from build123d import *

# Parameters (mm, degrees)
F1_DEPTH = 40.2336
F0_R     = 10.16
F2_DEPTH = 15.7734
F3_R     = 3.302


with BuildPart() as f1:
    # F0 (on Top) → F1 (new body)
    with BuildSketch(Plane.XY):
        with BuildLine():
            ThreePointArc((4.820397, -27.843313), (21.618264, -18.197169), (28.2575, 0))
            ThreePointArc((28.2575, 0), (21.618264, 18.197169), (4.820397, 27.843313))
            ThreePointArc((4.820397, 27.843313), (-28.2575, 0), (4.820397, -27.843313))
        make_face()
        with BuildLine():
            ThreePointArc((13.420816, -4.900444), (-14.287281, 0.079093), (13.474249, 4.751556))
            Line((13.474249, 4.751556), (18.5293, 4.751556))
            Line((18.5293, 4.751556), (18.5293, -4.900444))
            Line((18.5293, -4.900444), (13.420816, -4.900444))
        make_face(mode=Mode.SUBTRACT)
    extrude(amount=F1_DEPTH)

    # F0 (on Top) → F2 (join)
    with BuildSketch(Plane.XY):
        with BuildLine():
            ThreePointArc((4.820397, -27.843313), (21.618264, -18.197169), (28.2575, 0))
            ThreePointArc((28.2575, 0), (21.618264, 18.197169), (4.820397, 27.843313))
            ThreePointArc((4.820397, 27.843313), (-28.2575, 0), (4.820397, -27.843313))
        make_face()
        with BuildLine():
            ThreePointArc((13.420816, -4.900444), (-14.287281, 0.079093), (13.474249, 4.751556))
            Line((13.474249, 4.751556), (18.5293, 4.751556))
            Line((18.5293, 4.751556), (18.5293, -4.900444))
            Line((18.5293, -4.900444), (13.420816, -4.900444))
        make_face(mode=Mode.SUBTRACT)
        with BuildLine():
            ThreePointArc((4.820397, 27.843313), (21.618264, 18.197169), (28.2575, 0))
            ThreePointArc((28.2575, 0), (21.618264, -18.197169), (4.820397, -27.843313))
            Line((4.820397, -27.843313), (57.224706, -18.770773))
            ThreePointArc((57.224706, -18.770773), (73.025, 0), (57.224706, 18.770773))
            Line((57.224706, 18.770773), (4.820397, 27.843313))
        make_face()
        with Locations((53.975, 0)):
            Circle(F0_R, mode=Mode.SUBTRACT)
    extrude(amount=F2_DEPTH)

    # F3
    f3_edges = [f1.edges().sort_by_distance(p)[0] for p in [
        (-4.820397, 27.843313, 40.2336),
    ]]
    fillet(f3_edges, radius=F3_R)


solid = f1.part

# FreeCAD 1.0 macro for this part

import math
import FreeCAD as App
import Part
import Sketcher
from FreeCAD import Vector
Q = App.Units.Quantity


def edges_at(feature, points):
    """Names of the edges that pass closest to the given points."""
    edges = feature.Shape.Edges
    near = lambda p: min(range(len(edges)), key=lambda i: edges[i].distToShape(Part.Vertex(*p))[0])
    return sorted({f"Edge{near(p) + 1}" for p in points})

doc = App.newDocument("Part")
body = doc.addObject("PartDesign::Body", "Body")

# Sketch on XY plane
sketch1 = body.newObject("Sketcher::SketchObject", "Sketch")
sketch1.AttachmentSupport = (doc.getObject("XY_Plane"), [""])
sketch1.MapMode = "FlatFace"
sketch1.addGeometry([
    Part.ArcOfCircle(Part.Circle(Vector(0, 0, 0), Vector(0, 0, 1), 28), math.radians(-80), math.radians(0)),  # 0
    Part.ArcOfCircle(Part.Circle(Vector(0, 0, 0), Vector(0, 0, 1), 28), math.radians(0), math.radians(80)),  # 1
    Part.ArcOfCircle(Part.Circle(Vector(0, 0, 0), Vector(0, 0, 1), 28), math.radians(80), math.radians(280)),  # 2
    Part.LineSegment(Vector(19, -5, 0), Vector(13, -5, 0)),  # 3
    Part.ArcOfCircle(Part.Circle(Vector(0, 0, 0), Vector(0, 0, 1), 14), math.radians(19), math.radians(340)),  # 4
    Part.LineSegment(Vector(13, 5, 0), Vector(19, 5, 0)),  # 5
    Part.LineSegment(Vector(19, 5, 0), Vector(19, -5, 0)),  # 6
], False)
sketch1.addConstraint([
    Sketcher.Constraint("Tangent", 0, 2, 1, 1),
    Sketcher.Constraint("Tangent", 1, 2, 2, 1),
    Sketcher.Constraint("Tangent", 2, 2, 0, 1),
    Sketcher.Constraint("Coincident", 3, 2, 4, 2),
    Sketcher.Constraint("Coincident", 4, 1, 5, 1),
    Sketcher.Constraint("Coincident", 5, 2, 6, 1),
    Sketcher.Constraint("Coincident", 6, 2, 3, 1),
    Sketcher.Constraint("Horizontal", 3),
    Sketcher.Constraint("Horizontal", 5),
    Sketcher.Constraint("Vertical", 6),
    Sketcher.Constraint("Coincident", 0, 3, -1, 1),
    Sketcher.Constraint("Coincident", 4, 3, -1, 1),
    Sketcher.Constraint("PointOnObject", 0, 2, -1),
    Sketcher.Constraint("Vertical", 1, 2, 2, 2),
    Sketcher.Constraint("Radius", 4, Q("0.5625 in")),
    Sketcher.Constraint("DistanceY", 6, 2, 6, 1, Q("0.38 in")),
    Sketcher.Constraint("Radius", 0, Q("1.1125 in")),
    Sketcher.Constraint("DistanceX", 5, 2, 0, 2, Q("0.383 in")),
    Sketcher.Constraint("DistanceX", 5, 1, 5, 2, Q("5.055051 mm")),
    Sketcher.Constraint("DistanceX", -1, 1, 1, 2, Q("4.820397 mm")),
])
pad1 = body.newObject("PartDesign::Pad", "Pad")
pad1.Profile = sketch1
pad1.Length = Q("1.584 in")

# Sketch on XY plane
sketch2 = body.newObject("Sketcher::SketchObject", "Sketch001")
sketch2.AttachmentSupport = (doc.getObject("XY_Plane"), [""])
sketch2.MapMode = "FlatFace"
sketch2.addGeometry([
    Part.ArcOfCircle(Part.Circle(Vector(0, 0, 0), Vector(0, 0, 1), 28), math.radians(80), math.radians(280)),  # 0
    Part.LineSegment(Vector(5, -28, 0), Vector(57, -19, 0)),  # 1
    Part.ArcOfCircle(Part.Circle(Vector(54, 0, 0), Vector(0, 0, 1), 19), math.radians(-80), math.radians(80)),  # 2
    Part.LineSegment(Vector(57, 19, 0), Vector(5, 28, 0)),  # 3
    Part.Circle(Vector(54, 0, 0), Vector(0, 0, 1), 10),  # 4
    Part.LineSegment(Vector(19, -5, 0), Vector(13, -5, 0)),  # 5
    Part.ArcOfCircle(Part.Circle(Vector(0, 0, 0), Vector(0, 0, 1), 14), math.radians(19), math.radians(340)),  # 6
    Part.LineSegment(Vector(13, 5, 0), Vector(19, 5, 0)),  # 7
    Part.LineSegment(Vector(19, 5, 0), Vector(19, -5, 0)),  # 8
], False)
sketch2.addConstraint([
    Sketcher.Constraint("Tangent", 0, 2, 1, 1),
    Sketcher.Constraint("Tangent", 1, 2, 2, 1),
    Sketcher.Constraint("Tangent", 2, 2, 3, 1),
    Sketcher.Constraint("Tangent", 3, 2, 0, 1),
    Sketcher.Constraint("Coincident", 5, 2, 6, 2),
    Sketcher.Constraint("Coincident", 6, 1, 7, 1),
    Sketcher.Constraint("Coincident", 7, 2, 8, 1),
    Sketcher.Constraint("Coincident", 8, 2, 5, 1),
    Sketcher.Constraint("Horizontal", 5),
    Sketcher.Constraint("Horizontal", 7),
    Sketcher.Constraint("Vertical", 8),
    Sketcher.Constraint("Coincident", 0, 3, -1, 1),
    Sketcher.Constraint("Coincident", 6, 3, -1, 1),
    Sketcher.Constraint("Coincident", 4, 3, 2, 3),
    Sketcher.Constraint("PointOnObject", 2, 3, -1),
    Sketcher.Constraint("Diameter", 4, Q("0.8 in")),
    Sketcher.Constraint("Radius", 2, Q("0.75 in")),
    Sketcher.Constraint("Radius", 6, Q("0.5625 in")),
    Sketcher.Constraint("DistanceY", 8, 2, 8, 1, Q("0.38 in")),
    Sketcher.Constraint("Radius", 0, Q("1.1125 in")),
    Sketcher.Constraint("DistanceX", -1, 1, 2, 3, Q("2.125 in")),
    Sketcher.Constraint("DistanceX", -1, 1, 7, 2, Q("0.7295 in")),
    Sketcher.Constraint("DistanceX", 7, 1, 7, 2, Q("5.055051 mm")),
])
pad2 = body.newObject("PartDesign::Pad", "Pad001")
pad2.Profile = sketch2
pad2.Length = Q("0.621 in")
doc.recompute()

fillet = body.newObject("PartDesign::Fillet", "Fillet")
fillet.Base = (pad2, edges_at(pad2, [(-28.258, 0, 40.234)]))
fillet.Radius = Q("0.13 in")

doc.recompute()
